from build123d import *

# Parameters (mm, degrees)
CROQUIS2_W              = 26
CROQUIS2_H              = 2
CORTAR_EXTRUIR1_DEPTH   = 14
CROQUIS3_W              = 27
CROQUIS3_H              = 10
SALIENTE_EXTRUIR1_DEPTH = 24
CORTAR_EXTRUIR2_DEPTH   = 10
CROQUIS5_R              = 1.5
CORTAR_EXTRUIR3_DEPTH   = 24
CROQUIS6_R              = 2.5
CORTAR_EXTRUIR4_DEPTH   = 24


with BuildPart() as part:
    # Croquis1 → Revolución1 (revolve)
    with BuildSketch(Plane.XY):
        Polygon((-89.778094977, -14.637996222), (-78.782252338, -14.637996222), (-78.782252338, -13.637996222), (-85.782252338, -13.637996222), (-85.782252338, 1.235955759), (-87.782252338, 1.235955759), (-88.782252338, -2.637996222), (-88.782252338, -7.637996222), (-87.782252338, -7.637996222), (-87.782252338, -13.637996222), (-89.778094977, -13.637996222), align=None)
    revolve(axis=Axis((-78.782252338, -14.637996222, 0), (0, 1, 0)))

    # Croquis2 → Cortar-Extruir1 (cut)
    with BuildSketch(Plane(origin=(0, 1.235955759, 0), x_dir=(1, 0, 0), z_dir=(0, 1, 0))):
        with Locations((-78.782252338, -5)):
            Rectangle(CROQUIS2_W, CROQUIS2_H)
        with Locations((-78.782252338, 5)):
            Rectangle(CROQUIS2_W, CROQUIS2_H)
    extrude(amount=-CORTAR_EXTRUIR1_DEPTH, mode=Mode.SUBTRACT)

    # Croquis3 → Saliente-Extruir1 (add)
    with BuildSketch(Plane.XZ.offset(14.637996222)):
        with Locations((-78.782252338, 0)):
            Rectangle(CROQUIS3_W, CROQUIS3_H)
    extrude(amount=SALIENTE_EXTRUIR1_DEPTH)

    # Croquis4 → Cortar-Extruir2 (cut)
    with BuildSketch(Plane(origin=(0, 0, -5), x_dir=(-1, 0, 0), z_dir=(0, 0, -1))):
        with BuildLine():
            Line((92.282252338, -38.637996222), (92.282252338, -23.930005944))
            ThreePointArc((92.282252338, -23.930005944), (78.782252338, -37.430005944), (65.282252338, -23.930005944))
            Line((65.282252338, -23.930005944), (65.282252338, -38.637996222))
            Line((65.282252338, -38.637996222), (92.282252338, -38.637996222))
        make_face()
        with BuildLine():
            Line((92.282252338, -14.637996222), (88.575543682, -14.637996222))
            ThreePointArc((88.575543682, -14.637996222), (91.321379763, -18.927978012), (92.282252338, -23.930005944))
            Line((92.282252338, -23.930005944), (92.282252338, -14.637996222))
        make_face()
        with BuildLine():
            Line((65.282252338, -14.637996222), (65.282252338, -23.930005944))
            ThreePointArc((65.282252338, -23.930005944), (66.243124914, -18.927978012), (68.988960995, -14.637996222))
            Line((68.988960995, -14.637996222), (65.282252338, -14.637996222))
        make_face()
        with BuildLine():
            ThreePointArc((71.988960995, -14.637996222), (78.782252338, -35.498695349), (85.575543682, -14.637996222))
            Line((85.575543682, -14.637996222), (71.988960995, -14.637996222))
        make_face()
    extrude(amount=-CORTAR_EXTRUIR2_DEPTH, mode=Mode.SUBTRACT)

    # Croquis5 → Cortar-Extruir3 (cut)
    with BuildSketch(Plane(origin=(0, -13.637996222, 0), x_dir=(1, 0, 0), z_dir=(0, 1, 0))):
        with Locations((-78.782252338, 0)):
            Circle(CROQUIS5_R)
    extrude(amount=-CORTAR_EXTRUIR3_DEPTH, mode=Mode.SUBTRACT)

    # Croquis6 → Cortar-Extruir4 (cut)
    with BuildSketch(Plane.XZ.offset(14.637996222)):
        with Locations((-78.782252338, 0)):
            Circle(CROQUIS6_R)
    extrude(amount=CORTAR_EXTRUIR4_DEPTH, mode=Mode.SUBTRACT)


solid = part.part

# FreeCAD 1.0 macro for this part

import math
import FreeCAD as App
import Part
import Sketcher

V = App.Vector
Q = App.Units.Quantity


def add_polygon(sketch, points):
    """Adds a closed chain of lines whose ends are joined by coincident constraints."""
    first, n = sketch.GeometryCount, len(points)
    for a, b in zip(points, points[1:] + points[:1]):
        sketch.addGeometry(Part.LineSegment(App.Vector(*a, 0), App.Vector(*b, 0)), False)
    for i in range(n):
        sketch.addConstraint(Sketcher.Constraint("Coincident", first + i, 2, first + (i + 1) % n, 1))

doc = App.newDocument("Part")
body = doc.addObject("PartDesign::Body", "Body")

# Sketch on XY plane
sketch1 = body.newObject("Sketcher::SketchObject", "Sketch")
sketch1.AttachmentSupport = (doc.getObject("XY_Plane"), [""])
sketch1.MapMode = "FlatFace"
add_polygon(sketch1, [(-89.778095, -14.637996), (-78.782252, -14.637996), (-78.782252, -13.637996), (-85.782252, -13.637996), (-85.782252, 1.235956), (-87.782252, 1.235956), (-88.782252, -2.637996), (-88.782252, -7.637996), (-87.782252, -7.637996), (-87.782252, -13.637996), (-89.778095, -13.637996)])  # lines 0-10
sketch1.addGeometry(Part.LineSegment(V(-78.782252, -14.637996, 0), V(-78.782252, 1.235956, 0)), True)  # axis
sketch1.addConstraint([
    Sketcher.Constraint("Horizontal", 0),
    Sketcher.Constraint("Vertical", 1),
    Sketcher.Constraint("Horizontal", 2),
    Sketcher.Constraint("Vertical", 3),
    Sketcher.Constraint("Horizontal", 4),
    Sketcher.Constraint("Vertical", 6),
    Sketcher.Constraint("Horizontal", 7),
    Sketcher.Constraint("Vertical", 8),
    Sketcher.Constraint("Horizontal", 9),
    Sketcher.Constraint("Vertical", 10),
    Sketcher.Constraint("Vertical", 11),
    Sketcher.Constraint("Coincident", 11, 1, 0, 2),
    Sketcher.Constraint("Horizontal", 2, 2, 8, 2),
    Sketcher.Constraint("Horizontal", 4, 2, 11, 2),
    Sketcher.Constraint("Vertical", 4, 2, 7, 2),
    Sketcher.Constraint("Equal", 7, 1),
    Sketcher.Constraint("DistanceX", 2, 2, 2, 1, Q("7 mm")),
    Sketcher.Constraint("DistanceX", 4, 2, 4, 1, Q("2 mm")),
    Sketcher.Constraint("DistanceX", 7, 1, 7, 2, Q("1 mm")),
    Sketcher.Constraint("DistanceY", 6, 2, 6, 1, Q("5 mm")),
    Sketcher.Constraint("DistanceY", 8, 2, 8, 1, Q("6 mm")),
    Sketcher.Constraint("DistanceY", 3, 1, 3, 2, Q("14.873952 mm")),
    Sketcher.Constraint("DistanceX", 0, 1, 0, 2, Q("10.995843 mm")),
    Sketcher.Constraint("DistanceX", 0, 2, -1, 1, Q("78.782252 mm")),
    Sketcher.Constraint("DistanceY", 0, 2, -1, 1, Q("14.637996 mm")),
])
revolution = body.newObject("PartDesign::Revolution", "Revolution")
revolution.Profile = sketch1
revolution.ReferenceAxis = (sketch1, ["Axis0"])
revolution.Angle = 360

# Sketch on XZ plane
sketch2 = body.newObject("Sketcher::SketchObject", "Sketch001")
sketch2.AttachmentSupport = (doc.getObject("XZ_Plane"), [""])
sketch2.MapMode = "FlatFace"
sketch2.AttachmentOffset = App.Placement(V(0, 0, -1.235956), App.Rotation())
add_polygon(sketch2, [(-91.782252, 4), (-91.782252, 6), (-65.782252, 6), (-65.782252, 4)])  # lines 0-3
add_polygon(sketch2, [(-91.782252, -6), (-91.782252, -4), (-65.782252, -4), (-65.782252, -6)])  # lines 4-7
sketch2.addConstraint([
    Sketcher.Constraint("Vertical", 0),
    Sketcher.Constraint("Horizontal", 1),
    Sketcher.Constraint("Vertical", 2),
    Sketcher.Constraint("Horizontal", 3),
    Sketcher.Constraint("Vertical", 4),
    Sketcher.Constraint("Horizontal", 5),
    Sketcher.Constraint("Vertical", 6),
    Sketcher.Constraint("Horizontal", 7),
    Sketcher.Constraint("Symmetric", 3, 2, 4, 2, -1),
    Sketcher.Constraint("Symmetric", 1, 2, 6, 2, -1),
    Sketcher.Constraint("DistanceX", 1, 1, 1, 2, Q("26 mm")),
    Sketcher.Constraint("DistanceY", 0, 1, 0, 2, Q("2 mm")),
    Sketcher.Constraint("DistanceY", -1, 1, 0, 2, Q("6 mm")),
    Sketcher.Constraint("DistanceX", 0, 2, -1, 1, Q("91.782252 mm")),
])
pocket1 = body.newObject("PartDesign::Pocket", "Pocket")
pocket1.Profile = sketch2
pocket1.Length = 14
pocket1.Reversed = True

# Sketch on XZ plane
sketch3 = body.newObject("Sketcher::SketchObject", "Sketch002")
sketch3.AttachmentSupport = (doc.getObject("XZ_Plane"), [""])
sketch3.MapMode = "FlatFace"
sketch3.AttachmentOffset = App.Placement(V(0, 0, 14.637996), App.Rotation())
add_polygon(sketch3, [(-92.282252, 5), (-92.282252, -5), (-65.282252, -5), (-65.282252, 5)])  # lines 0-3
sketch3.addConstraint([
    Sketcher.Constraint("Vertical", 0),
    Sketcher.Constraint("Horizontal", 1),
    Sketcher.Constraint("Vertical", 2),
    Sketcher.Constraint("Horizontal", 3),
    Sketcher.Constraint("DistanceX", 1, 1, 1, 2, Q("27 mm")),
    Sketcher.Constraint("DistanceY", 0, 2, 0, 1, Q("10 mm")),
    Sketcher.Constraint("DistanceY", 0, 2, -1, 1, Q("5 mm")),
    Sketcher.Constraint("DistanceX", 0, 2, -1, 1, Q("92.282252 mm")),
])
pad1 = body.newObject("PartDesign::Pad", "Pad")
pad1.Profile = sketch3
pad1.Length = 24

# Sketch on XY plane
sketch4 = body.newObject("Sketcher::SketchObject", "Sketch003")
sketch4.AttachmentSupport = (doc.getObject("XY_Plane"), [""])
sketch4.MapMode = "FlatFace"
sketch4.AttachmentOffset = App.Placement(V(0, 0, -5), App.Rotation())
sketch4.addGeometry([
    Part.LineSegment(V(-92.282252, -38.637996, 0), V(-92.282252, -23.930006, 0)),  # 0
    Part.ArcOfCircle(Part.Circle(V(-78.782252, -23.930006, 0), V(0, 0, 1), 13.5), math.radians(180), math.radians(360)),  # 1
    Part.LineSegment(V(-65.282252, -23.930006, 0), V(-65.282252, -38.637996, 0)),  # 2
    Part.LineSegment(V(-65.282252, -38.637996, 0), V(-92.282252, -38.637996, 0)),  # 3
    Part.LineSegment(V(-92.282252, -14.637996, 0), V(-88.575544, -14.637996, 0)),  # 4
    Part.ArcOfCircle(Part.Circle(V(-78.782252, -23.930006, 0), V(0, 0, 1), 13.5), math.radians(136.504546), math.radians(180)),  # 5
    Part.LineSegment(V(-92.282252, -23.930006, 0), V(-92.282252, -14.637996, 0)),  # 6
    Part.LineSegment(V(-65.282252, -14.637996, 0), V(-65.282252, -23.930006, 0)),  # 7
    Part.ArcOfCircle(Part.Circle(V(-78.782252, -23.930006, 0), V(0, 0, 1), 13.5), math.radians(0), math.radians(43.495454)),  # 8
    Part.LineSegment(V(-68.988961, -14.637996, 0), V(-65.282252, -14.637996, 0)),  # 9
    Part.ArcOfCircle(Part.Circle(V(-78.782252, -23.962227, 0), V(0, 0, 1), 11.536468), math.radians(126.075702), math.radians(413.924298)),  # 10
    Part.LineSegment(V(-85.575544, -14.637996, 0), V(-71.988961, -14.637996, 0)),  # 11
], False)
sketch4.addConstraint([
    Sketcher.Constraint("Tangent", 0, 2, 1, 1),
    Sketcher.Constraint("Tangent", 1, 2, 2, 1),
    Sketcher.Constraint("Coincident", 2, 2, 3, 1),
    Sketcher.Constraint("Coincident", 3, 2, 0, 1),
    Sketcher.Constraint("Coincident", 4, 2, 5, 1),
    Sketcher.Constraint("Tangent", 5, 2, 6, 1),
    Sketcher.Constraint("Coincident", 6, 2, 4, 1),
    Sketcher.Constraint("Tangent", 7, 2, 8, 1),
    Sketcher.Constraint("Coincident", 8, 2, 9, 1),
    Sketcher.Constraint("Coincident", 9, 2, 7, 1),
    Sketcher.Constraint("Coincident", 10, 1, 11, 1),
    Sketcher.Constraint("Coincident", 11, 2, 10, 2),
    Sketcher.Constraint("Vertical", 0),
    Sketcher.Constraint("Vertical", 2),
    Sketcher.Constraint("Horizontal", 3),
    Sketcher.Constraint("Horizontal", 4),
    Sketcher.Constraint("Vertical", 6),
    Sketcher.Constraint("Vertical", 7),
    Sketcher.Constraint("Horizontal", 9),
    Sketcher.Constraint("Horizontal", 11),
    Sketcher.Constraint("Coincident", 5, 3, 1, 3),
    Sketcher.Constraint("Coincident", 8, 3, 1, 3),
    Sketcher.Constraint("Equal", 1, 5),
    Sketcher.Constraint("Equal", 5, 8),
    Sketcher.Constraint("Horizontal", 6, 2, 8, 2),
    Sketcher.Constraint("Horizontal", 9, 2, 10, 1),
    Sketcher.Constraint("Vertical", 8, 3, 10, 3),
    Sketcher.Constraint("Radius", 1, Q("13.5 mm")),
    Sketcher.Constraint("DistanceX", 4, 2, 10, 1, Q("3 mm")),
    Sketcher.Constraint("Radius", 10, Q("11.536468 mm")),
    Sketcher.Constraint("DistanceX", 4, 1, 4, 2, Q("3.706709 mm")),
    Sketcher.Constraint("DistanceY", 0, 1, 0, 2, Q("14.70799 mm")),
    Sketcher.Constraint("DistanceX", 8, 2, -1, 1, Q("68.988961 mm")),
    Sketcher.Constraint("DistanceY", 1, 3, -1, 1, Q("23.930006 mm")),
])
pocket2 = body.newObject("PartDesign::Pocket", "Pocket001")
pocket2.Profile = sketch4
pocket2.Length = 10
pocket2.Reversed = True

# Sketch on XZ plane
sketch5 = body.newObject("Sketcher::SketchObject", "Sketch004")
sketch5.AttachmentSupport = (doc.getObject("XZ_Plane"), [""])
sketch5.MapMode = "FlatFace"
sketch5.AttachmentOffset = App.Placement(V(0, 0, 13.637996), App.Rotation())
sketch5.addGeometry(Part.Circle(V(-78.782252, 0, 0), V(0, 0, 1), 1.5), False)
sketch5.addConstraint([
    Sketcher.Constraint("PointOnObject", 0, 3, -1),
    Sketcher.Constraint("Diameter", 0, Q("3 mm")),
    Sketcher.Constraint("DistanceX", 0, 3, -1, 1, Q("78.782252 mm")),
])
pocket3 = body.newObject("PartDesign::Pocket", "Pocket002")
pocket3.Profile = sketch5
pocket3.Length = 24
pocket3.Reversed = True

# Sketch on XZ plane
sketch6 = body.newObject("Sketcher::SketchObject", "Sketch005")
sketch6.AttachmentSupport = (doc.getObject("XZ_Plane"), [""])
sketch6.MapMode = "FlatFace"
sketch6.AttachmentOffset = App.Placement(V(0, 0, 14.637996), App.Rotation())
sketch6.addGeometry(Part.Circle(V(-78.782252, 0, 0), V(0, 0, 1), 2.5), False)
sketch6.addConstraint([
    Sketcher.Constraint("PointOnObject", 0, 3, -1),
    Sketcher.Constraint("Diameter", 0, Q("5 mm")),
    Sketcher.Constraint("DistanceX", 0, 3, -1, 1, Q("78.782252 mm")),
])
pocket4 = body.newObject("PartDesign::Pocket", "Pocket003")
pocket4.Profile = sketch6
pocket4.Length = 24
pocket4.Reversed = True

doc.recompute()
